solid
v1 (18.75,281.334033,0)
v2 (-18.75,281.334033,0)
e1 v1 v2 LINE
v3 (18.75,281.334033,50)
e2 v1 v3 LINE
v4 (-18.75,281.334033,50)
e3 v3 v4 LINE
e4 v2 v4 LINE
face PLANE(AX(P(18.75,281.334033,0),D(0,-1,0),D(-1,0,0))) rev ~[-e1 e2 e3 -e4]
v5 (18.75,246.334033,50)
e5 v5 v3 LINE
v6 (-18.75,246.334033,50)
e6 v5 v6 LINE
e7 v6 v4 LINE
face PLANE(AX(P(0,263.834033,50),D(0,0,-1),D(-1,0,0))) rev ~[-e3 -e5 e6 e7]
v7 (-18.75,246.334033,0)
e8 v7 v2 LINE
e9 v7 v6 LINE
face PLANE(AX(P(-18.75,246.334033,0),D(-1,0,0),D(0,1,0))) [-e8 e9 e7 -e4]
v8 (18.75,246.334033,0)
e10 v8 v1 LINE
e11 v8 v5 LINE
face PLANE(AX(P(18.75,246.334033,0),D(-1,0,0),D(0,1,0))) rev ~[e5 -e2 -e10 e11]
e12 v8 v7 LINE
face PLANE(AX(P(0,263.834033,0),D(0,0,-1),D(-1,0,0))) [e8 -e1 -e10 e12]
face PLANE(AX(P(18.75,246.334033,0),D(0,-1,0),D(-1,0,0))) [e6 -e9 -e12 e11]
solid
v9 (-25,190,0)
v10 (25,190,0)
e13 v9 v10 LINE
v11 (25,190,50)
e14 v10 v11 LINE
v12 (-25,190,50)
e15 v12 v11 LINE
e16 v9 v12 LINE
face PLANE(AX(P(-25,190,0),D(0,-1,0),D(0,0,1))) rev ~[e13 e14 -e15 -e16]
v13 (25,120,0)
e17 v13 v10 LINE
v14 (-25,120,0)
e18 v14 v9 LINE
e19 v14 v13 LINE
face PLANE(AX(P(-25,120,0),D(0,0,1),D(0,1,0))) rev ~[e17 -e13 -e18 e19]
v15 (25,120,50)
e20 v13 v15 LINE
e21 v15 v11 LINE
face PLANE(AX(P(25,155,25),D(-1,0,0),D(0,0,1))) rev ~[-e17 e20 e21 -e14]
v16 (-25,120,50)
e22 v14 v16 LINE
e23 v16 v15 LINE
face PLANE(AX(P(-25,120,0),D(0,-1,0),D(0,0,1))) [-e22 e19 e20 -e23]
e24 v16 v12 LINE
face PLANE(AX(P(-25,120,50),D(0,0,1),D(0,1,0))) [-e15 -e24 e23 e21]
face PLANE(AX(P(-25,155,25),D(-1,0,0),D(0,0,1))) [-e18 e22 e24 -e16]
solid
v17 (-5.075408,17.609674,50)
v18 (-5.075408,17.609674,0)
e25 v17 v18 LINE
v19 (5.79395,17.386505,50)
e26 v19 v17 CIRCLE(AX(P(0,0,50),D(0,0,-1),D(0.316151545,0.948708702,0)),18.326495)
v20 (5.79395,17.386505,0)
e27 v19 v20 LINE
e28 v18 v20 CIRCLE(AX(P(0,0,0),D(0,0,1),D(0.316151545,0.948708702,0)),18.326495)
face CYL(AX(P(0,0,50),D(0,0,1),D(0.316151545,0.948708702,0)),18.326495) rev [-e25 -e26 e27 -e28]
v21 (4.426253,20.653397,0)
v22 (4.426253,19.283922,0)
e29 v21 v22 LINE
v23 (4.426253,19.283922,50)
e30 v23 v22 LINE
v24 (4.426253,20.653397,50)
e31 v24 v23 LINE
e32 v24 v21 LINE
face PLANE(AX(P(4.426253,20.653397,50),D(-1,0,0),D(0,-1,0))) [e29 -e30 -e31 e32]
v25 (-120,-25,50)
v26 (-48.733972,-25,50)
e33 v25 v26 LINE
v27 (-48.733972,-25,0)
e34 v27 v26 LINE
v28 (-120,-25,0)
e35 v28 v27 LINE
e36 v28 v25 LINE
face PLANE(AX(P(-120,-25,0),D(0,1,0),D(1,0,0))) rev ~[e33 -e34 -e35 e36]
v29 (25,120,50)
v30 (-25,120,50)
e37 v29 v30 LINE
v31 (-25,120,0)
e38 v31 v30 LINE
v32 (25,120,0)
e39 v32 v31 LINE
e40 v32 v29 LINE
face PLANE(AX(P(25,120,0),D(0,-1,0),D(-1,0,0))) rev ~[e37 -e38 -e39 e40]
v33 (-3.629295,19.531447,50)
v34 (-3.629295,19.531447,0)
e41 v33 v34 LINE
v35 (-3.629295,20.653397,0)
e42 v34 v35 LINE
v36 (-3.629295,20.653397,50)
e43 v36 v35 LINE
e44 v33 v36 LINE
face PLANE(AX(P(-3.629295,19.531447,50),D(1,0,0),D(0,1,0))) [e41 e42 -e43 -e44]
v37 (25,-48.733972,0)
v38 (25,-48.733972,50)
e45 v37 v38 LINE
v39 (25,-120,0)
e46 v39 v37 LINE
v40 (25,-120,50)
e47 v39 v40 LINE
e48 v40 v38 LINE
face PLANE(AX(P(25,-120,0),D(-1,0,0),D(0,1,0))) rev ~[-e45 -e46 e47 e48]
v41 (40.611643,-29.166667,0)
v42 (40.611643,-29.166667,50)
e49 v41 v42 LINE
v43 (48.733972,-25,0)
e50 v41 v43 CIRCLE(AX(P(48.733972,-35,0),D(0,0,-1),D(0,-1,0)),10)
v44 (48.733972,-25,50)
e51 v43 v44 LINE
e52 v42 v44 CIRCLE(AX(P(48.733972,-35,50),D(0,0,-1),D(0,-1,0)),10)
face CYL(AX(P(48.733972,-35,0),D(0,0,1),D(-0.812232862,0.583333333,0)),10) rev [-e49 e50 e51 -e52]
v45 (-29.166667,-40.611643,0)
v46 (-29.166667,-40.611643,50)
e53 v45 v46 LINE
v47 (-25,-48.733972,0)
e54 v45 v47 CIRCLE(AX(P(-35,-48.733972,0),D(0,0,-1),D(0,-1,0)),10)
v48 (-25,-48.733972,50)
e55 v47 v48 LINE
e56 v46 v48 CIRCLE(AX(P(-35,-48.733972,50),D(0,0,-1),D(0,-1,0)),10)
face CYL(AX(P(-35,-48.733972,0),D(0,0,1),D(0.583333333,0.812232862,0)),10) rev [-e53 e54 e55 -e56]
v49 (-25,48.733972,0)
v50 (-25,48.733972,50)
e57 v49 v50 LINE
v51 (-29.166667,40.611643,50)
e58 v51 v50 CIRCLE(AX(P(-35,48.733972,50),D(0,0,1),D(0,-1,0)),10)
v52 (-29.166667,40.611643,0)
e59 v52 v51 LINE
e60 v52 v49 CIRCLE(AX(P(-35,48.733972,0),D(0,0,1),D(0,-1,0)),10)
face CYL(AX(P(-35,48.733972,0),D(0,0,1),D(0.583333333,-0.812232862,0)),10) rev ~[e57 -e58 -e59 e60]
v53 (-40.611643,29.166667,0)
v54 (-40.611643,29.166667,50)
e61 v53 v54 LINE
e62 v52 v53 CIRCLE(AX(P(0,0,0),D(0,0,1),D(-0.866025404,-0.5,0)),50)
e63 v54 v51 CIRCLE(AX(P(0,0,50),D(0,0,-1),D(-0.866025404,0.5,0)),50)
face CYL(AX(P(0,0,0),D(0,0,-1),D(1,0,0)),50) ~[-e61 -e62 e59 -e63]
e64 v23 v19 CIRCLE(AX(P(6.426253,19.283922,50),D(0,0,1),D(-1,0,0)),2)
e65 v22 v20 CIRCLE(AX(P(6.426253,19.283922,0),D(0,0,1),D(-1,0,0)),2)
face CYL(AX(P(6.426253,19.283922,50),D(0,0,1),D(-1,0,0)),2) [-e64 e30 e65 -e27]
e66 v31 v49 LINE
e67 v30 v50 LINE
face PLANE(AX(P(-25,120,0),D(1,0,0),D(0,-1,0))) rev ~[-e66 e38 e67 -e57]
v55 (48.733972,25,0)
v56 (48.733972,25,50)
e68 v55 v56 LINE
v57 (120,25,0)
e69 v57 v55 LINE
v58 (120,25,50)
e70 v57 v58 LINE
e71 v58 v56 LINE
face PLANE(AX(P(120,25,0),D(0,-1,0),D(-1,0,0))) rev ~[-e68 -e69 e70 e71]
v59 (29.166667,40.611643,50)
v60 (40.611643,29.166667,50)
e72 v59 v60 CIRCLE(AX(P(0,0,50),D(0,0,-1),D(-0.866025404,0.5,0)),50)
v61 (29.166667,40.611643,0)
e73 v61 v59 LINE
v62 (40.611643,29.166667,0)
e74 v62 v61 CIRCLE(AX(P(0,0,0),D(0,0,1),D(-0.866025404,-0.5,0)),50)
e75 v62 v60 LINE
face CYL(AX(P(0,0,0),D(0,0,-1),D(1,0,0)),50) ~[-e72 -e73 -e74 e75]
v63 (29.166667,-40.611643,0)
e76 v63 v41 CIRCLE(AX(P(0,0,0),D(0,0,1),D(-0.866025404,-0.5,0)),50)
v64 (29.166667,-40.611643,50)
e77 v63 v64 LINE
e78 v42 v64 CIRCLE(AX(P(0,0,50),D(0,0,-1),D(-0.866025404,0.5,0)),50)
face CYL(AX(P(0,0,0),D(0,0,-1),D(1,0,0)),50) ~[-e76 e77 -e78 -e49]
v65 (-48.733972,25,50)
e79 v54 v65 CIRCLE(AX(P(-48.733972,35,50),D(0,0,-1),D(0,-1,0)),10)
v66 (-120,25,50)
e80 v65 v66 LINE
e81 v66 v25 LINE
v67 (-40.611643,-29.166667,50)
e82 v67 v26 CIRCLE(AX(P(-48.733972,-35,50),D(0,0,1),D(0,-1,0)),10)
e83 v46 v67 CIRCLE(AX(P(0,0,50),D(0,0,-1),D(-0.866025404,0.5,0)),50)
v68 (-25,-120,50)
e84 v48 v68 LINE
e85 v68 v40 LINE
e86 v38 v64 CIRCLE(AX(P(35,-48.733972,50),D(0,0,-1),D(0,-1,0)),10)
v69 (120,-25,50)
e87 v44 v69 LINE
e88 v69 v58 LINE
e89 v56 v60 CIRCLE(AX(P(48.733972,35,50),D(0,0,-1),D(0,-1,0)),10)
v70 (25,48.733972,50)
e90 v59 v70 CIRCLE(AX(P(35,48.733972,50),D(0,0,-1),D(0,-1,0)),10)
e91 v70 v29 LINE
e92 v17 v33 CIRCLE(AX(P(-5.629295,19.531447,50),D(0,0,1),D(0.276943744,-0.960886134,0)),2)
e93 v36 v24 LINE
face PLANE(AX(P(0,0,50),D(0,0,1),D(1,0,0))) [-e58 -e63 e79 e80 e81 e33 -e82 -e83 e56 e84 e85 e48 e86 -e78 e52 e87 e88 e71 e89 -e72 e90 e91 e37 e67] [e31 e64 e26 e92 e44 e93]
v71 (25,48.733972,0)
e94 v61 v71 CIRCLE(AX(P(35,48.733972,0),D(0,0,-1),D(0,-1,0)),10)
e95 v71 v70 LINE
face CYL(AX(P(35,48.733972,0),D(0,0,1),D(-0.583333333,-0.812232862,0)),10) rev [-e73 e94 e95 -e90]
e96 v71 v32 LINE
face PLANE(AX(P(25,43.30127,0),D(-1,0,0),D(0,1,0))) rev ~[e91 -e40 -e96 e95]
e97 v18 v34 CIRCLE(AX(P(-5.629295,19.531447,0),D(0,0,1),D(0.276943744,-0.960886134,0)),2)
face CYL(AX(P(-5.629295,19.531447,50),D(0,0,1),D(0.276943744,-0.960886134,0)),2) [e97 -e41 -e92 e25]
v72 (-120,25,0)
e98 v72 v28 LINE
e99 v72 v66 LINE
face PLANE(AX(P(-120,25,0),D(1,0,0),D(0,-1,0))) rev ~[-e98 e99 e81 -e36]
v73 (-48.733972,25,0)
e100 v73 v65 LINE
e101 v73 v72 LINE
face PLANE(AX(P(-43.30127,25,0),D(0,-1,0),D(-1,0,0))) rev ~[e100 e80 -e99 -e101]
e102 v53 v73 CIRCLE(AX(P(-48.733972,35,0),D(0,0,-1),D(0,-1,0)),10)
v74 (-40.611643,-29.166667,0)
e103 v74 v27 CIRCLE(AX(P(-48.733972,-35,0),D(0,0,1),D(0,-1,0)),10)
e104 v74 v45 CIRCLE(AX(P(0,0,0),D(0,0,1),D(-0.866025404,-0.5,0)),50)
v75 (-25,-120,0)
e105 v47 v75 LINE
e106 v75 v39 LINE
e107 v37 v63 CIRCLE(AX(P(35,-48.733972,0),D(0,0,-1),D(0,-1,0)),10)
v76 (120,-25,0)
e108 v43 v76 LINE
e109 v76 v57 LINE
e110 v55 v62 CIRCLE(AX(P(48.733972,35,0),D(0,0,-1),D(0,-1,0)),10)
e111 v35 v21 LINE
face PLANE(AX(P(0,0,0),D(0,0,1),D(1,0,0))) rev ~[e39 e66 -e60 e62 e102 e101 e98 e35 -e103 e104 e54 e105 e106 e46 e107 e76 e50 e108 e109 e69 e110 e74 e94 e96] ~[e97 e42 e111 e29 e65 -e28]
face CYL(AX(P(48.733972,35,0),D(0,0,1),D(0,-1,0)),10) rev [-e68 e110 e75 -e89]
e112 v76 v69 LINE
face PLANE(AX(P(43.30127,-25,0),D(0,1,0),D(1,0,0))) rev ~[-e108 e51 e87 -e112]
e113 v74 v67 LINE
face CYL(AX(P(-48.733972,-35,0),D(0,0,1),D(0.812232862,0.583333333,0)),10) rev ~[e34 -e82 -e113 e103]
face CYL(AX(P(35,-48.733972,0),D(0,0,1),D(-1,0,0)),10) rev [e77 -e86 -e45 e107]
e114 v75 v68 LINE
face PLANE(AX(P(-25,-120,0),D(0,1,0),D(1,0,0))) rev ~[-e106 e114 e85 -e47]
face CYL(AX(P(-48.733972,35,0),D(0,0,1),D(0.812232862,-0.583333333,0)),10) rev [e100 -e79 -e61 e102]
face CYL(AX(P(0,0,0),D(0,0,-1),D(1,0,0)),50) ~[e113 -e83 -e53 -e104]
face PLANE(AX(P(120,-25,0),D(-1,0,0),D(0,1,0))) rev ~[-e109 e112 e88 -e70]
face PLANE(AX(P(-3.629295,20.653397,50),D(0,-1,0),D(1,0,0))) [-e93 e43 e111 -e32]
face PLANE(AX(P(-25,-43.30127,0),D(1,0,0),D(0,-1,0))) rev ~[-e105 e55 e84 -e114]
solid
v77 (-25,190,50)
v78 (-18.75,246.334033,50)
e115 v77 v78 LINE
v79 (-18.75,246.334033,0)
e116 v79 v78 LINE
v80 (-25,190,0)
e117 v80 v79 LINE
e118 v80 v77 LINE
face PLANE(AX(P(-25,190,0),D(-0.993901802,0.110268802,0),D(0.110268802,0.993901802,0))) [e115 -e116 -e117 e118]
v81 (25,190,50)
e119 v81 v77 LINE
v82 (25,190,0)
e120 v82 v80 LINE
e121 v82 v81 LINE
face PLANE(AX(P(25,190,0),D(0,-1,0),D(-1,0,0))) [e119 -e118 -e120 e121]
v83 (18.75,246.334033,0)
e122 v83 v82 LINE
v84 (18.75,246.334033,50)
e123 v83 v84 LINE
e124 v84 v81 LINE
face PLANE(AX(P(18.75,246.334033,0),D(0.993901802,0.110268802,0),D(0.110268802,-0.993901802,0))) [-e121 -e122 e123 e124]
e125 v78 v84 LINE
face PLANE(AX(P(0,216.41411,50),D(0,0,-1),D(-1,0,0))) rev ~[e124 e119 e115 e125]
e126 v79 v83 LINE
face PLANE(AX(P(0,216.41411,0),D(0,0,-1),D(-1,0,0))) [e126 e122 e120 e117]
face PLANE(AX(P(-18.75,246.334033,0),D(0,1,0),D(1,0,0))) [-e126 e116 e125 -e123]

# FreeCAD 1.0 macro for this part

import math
import FreeCAD as App
import Part
import Sketcher

V = App.Vector
Q = App.Units.Quantity


def edges_at(feature, points):
    """Names of the edges that pass closest to the given points."""
    edges = feature.Shape.Edges
    near = lambda p: min(range(len(edges)), key=lambda i: edges[i].distToShape(Part.Vertex(*p))[0])
    return sorted({f"Edge{near(p) + 1}" for p in points})

doc = App.newDocument("Part")
params = doc.addObject("Spreadsheet::Sheet", "Params")
for row, (alias, value) in enumerate([
    ("sketch1_diameter", "100 mm"),
    ("pad1_length", "50 mm"),
    ("sketch2_radius", "50 mm"),
    ("sketch2_height", "50 mm"),
    ("pad2_length", "50 mm"),
    ("fillet_radius", "10 mm"),
    ("fillet2_radius", "10 mm"),
    ("sketch3_radius", "2 mm"),
    ("sketch4_width", "70 mm"),
    ("sketch4_height", "50 mm"),
    ("pad3_length", "50 mm"),
    ("sketch5_width", "50 mm"),
    ("sketch5_width2", "37.5 mm"),
    ("pad4_length", "50 mm"),
    ("sketch6_height", "35 mm"),
    ("sketch6_width", "37.5 mm"),
    ("pad5_length", "50 mm"),
], start=1):
    params.set(f"A{row}", alias)
    params.set(f"B{row}", "=" + value)
    params.setAlias(f"B{row}", alias)

body = doc.addObject("PartDesign::Body", "Body")

sketch1 = doc.addObject("Sketcher::SketchObject", "Sketch")
body.addObject(sketch1)
sketch1.AttachmentSupport = (doc.XY_Plane, [""])
sketch1.MapMode = "FlatFace"
sketch1.addGeometry(Part.Circle(V(0, 0, 0), V(0, 0, 1), 50), False)
sketch1.addConstraint(Sketcher.Constraint("Coincident", 0, 3, -1, 1))
sketch1.addConstraint(Sketcher.Constraint("Diameter", 0, Q("100 mm")))
sketch1.setExpression("Constraints[1]", "Params.sketch1_diameter")
pad1 = doc.addObject("PartDesign::Pad", "Pad")
body.addObject(pad1)
pad1.Profile = sketch1
pad1.setExpression("Length", "Params.pad1_length")

sketch2 = doc.addObject("Sketcher::SketchObject", "Sketch001")
body.addObject(sketch2)
sketch2.AttachmentSupport = (doc.XY_Plane, [""])
sketch2.MapMode = "FlatFace"
sketch2.addGeometry(Part.ArcOfCircle(Part.Circle(V(0, 0, 0), V(0, 0, 1), 50), math.radians(-180), math.radians(-150)), False)
sketch2.addGeometry(Part.ArcOfCircle(Part.Circle(V(0, 0, 0), V(0, 0, 1), 50), math.radians(150), math.radians(180)), False)
sketch2.addGeometry(Part.LineSegment(V(-43, 25, 0), V(-120, 25, 0)), False)
sketch2.addGeometry(Part.LineSegment(V(-120, 25, 0), V(-120, -25, 0)), False)
sketch2.addGeometry(Part.LineSegment(V(-120, -25, 0), V(-43, -25, 0)), False)
sketch2.addConstraint(Sketcher.Constraint("Tangent", 0, 1, 1, 2))
sketch2.addConstraint(Sketcher.Constraint("Coincident", 1, 1, 2, 1))
sketch2.addConstraint(Sketcher.Constraint("Coincident", 2, 2, 3, 1))
sketch2.addConstraint(Sketcher.Constraint("Coincident", 3, 2, 4, 1))
sketch2.addConstraint(Sketcher.Constraint("Coincident", 4, 2, 0, 2))
sketch2.addConstraint(Sketcher.Constraint("Horizontal", 2))
sketch2.addConstraint(Sketcher.Constraint("Vertical", 3))
sketch2.addConstraint(Sketcher.Constraint("Horizontal", 4))
sketch2.addConstraint(Sketcher.Constraint("Coincident", 0, 3, -1, 1))
sketch2.addConstraint(Sketcher.Constraint("Equal", 0, 1))
sketch2.addConstraint(Sketcher.Constraint("PointOnObject", 0, 1, -1))
sketch2.addConstraint(Sketcher.Constraint("Vertical", 1, 1, 4, 2))
sketch2.addConstraint(Sketcher.Constraint("Radius", 0, Q("50 mm")))
sketch2.addConstraint(Sketcher.Constraint("DistanceY", 3, 2, 3, 1, Q("50 mm")))
sketch2.addConstraint(Sketcher.Constraint("DistanceX", 2, 2, -1, 1, Q("120 mm")))
sketch2.setExpression("Constraints[12]", "Params.sketch2_radius")
sketch2.setExpression("Constraints[13]", "Params.sketch2_height")
pad2 = doc.addObject("PartDesign::Pad", "Pad001")
body.addObject(pad2)
pad2.Profile = sketch2
pad2.setExpression("Length", "Params.pad2_length")
doc.recompute()

fillet = doc.addObject("PartDesign::Fillet", "Fillet")
body.addObject(fillet)
fillet.Base = (pad2, edges_at(pad2, [(-43.301, 25, 25), (-43.301, -25, 25)]))
fillet.setExpression("Radius", "Params.fillet_radius")
doc.recompute()

polarpattern = doc.addObject("PartDesign::PolarPattern", "PolarPattern")
body.addObject(polarpattern)
polarpattern.Originals = [pad2]
polarpattern.Axis = (doc.Z_Axis, [""])
polarpattern.Angle = 360
polarpattern.Occurrences = 4
body.Tip = polarpattern
doc.recompute()

fillet2 = doc.addObject("PartDesign::Fillet", "Fillet001")
body.addObject(fillet2)
fillet2.Base = (polarpattern, edges_at(polarpattern, [
    (-25, -43.301, 25),
    (25, -43.301, 25),
    (43.301, -25, 25),
    (43.301, 25, 25),
    (25, 43.301, 25),
    (-25, 43.301, 25),
]))
fillet2.setExpression("Radius", "Params.fillet2_radius")

sketch3 = doc.addObject("Sketcher::SketchObject", "Sketch002")
body.addObject(sketch3)
sketch3.AttachmentSupport = (doc.XY_Plane, [""])
sketch3.MapMode = "FlatFace"
sketch3.AttachmentOffset = App.Placement(V(0, 0, 50), App.Rotation())
sketch3.addGeometry(Part.LineSegment(V(-3.6, 20.7, 0), V(-3.6, 19.5, 0)), False)
sketch3.addGeometry(Part.ArcOfCircle(Part.Circle(V(-5.6, 19.5, 0), V(0, 0, 1), 2), math.radians(-74), math.radians(0)), False)
sketch3.addGeometry(Part.ArcOfCircle(Part.Circle(V(0, 0, 0), V(0, 0, 1), 18.3), math.radians(106), math.radians(432)), False)
sketch3.addGeometry(Part.ArcOfCircle(Part.Circle(V(6.4, 19.3, 0), V(0, 0, 1), 2), math.radians(180), math.radians(252)), False)
sketch3.addGeometry(Part.LineSegment(V(4.4, 19.3, 0), V(4.4, 20.7, 0)), False)
sketch3.addGeometry(Part.LineSegment(V(4.4, 20.7, 0), V(-3.6, 20.7, 0)), False)
sketch3.addConstraint(Sketcher.Constraint("Tangent", 0, 2, 1, 2))
sketch3.addConstraint(Sketcher.Constraint("Tangent", 1, 1, 2, 1))
sketch3.addConstraint(Sketcher.Constraint("Tangent", 2, 2, 3, 2))
sketch3.addConstraint(Sketcher.Constraint("Tangent", 3, 1, 4, 1))
sketch3.addConstraint(Sketcher.Constraint("Coincident", 4, 2, 5, 1))
sketch3.addConstraint(Sketcher.Constraint("Coincident", 5, 2, 0, 1))
sketch3.addConstraint(Sketcher.Constraint("Vertical", 0))
sketch3.addConstraint(Sketcher.Constraint("Vertical", 4))
sketch3.addConstraint(Sketcher.Constraint("Horizontal", 5))
sketch3.addConstraint(Sketcher.Constraint("Coincident", 2, 3, -1, 1))
sketch3.addConstraint(Sketcher.Constraint("Equal", 1, 3))
sketch3.addConstraint(Sketcher.Constraint("Radius", 1, Q("2 mm")))
sketch3.addConstraint(Sketcher.Constraint("Radius", 2, Q("18.326495 mm")))
sketch3.addConstraint(Sketcher.Constraint("DistanceX", 5, 2, 5, 1, Q("8.055548 mm")))
sketch3.addConstraint(Sketcher.Constraint("DistanceY", 0, 2, 0, 1, Q("1.121951 mm")))
sketch3.addConstraint(Sketcher.Constraint("DistanceY", 4, 1, 4, 2, Q("1.369475 mm")))
sketch3.setExpression("Constraints[11]", "Params.sketch3_radius")
pocket1 = doc.addObject("PartDesign::Pocket", "Pocket")
body.addObject(pocket1)
pocket1.Profile = sketch3
pocket1.Type = "ThroughAll"
body2 = doc.addObject("PartDesign::Body", "Body001")

sketch4 = doc.addObject("Sketcher::SketchObject", "Sketch003")
body2.addObject(sketch4)
sketch4.AttachmentSupport = (doc.getObject("YZ_Plane001"), [""])
sketch4.MapMode = "FlatFace"
sketch4.AttachmentOffset = App.Placement(V(0, 0, -25), App.Rotation())
sketch4.addGeometry(Part.LineSegment(V(190, 0, 0), V(120, 0, 0)), False)
sketch4.addGeometry(Part.LineSegment(V(120, 0, 0), V(120, 50, 0)), False)
sketch4.addGeometry(Part.LineSegment(V(120, 50, 0), V(190, 50, 0)), False)
sketch4.addGeometry(Part.LineSegment(V(190, 50, 0), V(190, 0, 0)), False)
sketch4.addConstraint(Sketcher.Constraint("Coincident", 0, 2, 1, 1))
sketch4.addConstraint(Sketcher.Constraint("Coincident", 1, 2, 2, 1))
sketch4.addConstraint(Sketcher.Constraint("Coincident", 2, 2, 3, 1))
sketch4.addConstraint(Sketcher.Constraint("Coincident", 3, 2, 0, 1))
sketch4.addConstraint(Sketcher.Constraint("Horizontal", 0))
sketch4.addConstraint(Sketcher.Constraint("Vertical", 1))
sketch4.addConstraint(Sketcher.Constraint("Horizontal", 2))
sketch4.addConstraint(Sketcher.Constraint("Vertical", 3))
sketch4.addConstraint(Sketcher.Constraint("PointOnObject", 0, 2, -1))
sketch4.addConstraint(Sketcher.Constraint("DistanceX", 0, 2, 0, 1, Q("70 mm")))
sketch4.addConstraint(Sketcher.Constraint("DistanceY", 1, 1, 1, 2, Q("50 mm")))
sketch4.addConstraint(Sketcher.Constraint("DistanceX", -1, 1, 0, 2, Q("120 mm")))
sketch4.setExpression("Constraints[9]", "Params.sketch4_width")
sketch4.setExpression("Constraints[10]", "Params.sketch4_height")
pad3 = doc.addObject("PartDesign::Pad", "Pad002")
body2.addObject(pad3)
pad3.Profile = sketch4
pad3.setExpression("Length", "Params.pad3_length")
body3 = doc.addObject("PartDesign::Body", "Body002")

sketch5 = doc.addObject("Sketcher::SketchObject", "Sketch004")
body3.addObject(sketch5)
sketch5.AttachmentSupport = (doc.getObject("XY_Plane002"), [""])
sketch5.MapMode = "FlatFace"
sketch5.addGeometry(Part.LineSegment(V(25, 190, 0), V(-25, 190, 0)), False)
sketch5.addGeometry(Part.LineSegment(V(-25, 190, 0), V(-19, 246, 0)), False)
sketch5.addGeometry(Part.LineSegment(V(-19, 246, 0), V(19, 246, 0)), False)
sketch5.addGeometry(Part.LineSegment(V(19, 246, 0), V(25, 190, 0)), False)
sketch5.addConstraint(Sketcher.Constraint("Coincident", 0, 2, 1, 1))
sketch5.addConstraint(Sketcher.Constraint("Coincident", 1, 2, 2, 1))
sketch5.addConstraint(Sketcher.Constraint("Coincident", 2, 2, 3, 1))
sketch5.addConstraint(Sketcher.Constraint("Coincident", 3, 2, 0, 1))
sketch5.addConstraint(Sketcher.Constraint("Horizontal", 0))
sketch5.addConstraint(Sketcher.Constraint("Horizontal", 2))
sketch5.addConstraint(Sketcher.Constraint("Equal", 1, 3))
sketch5.addConstraint(Sketcher.Constraint("DistanceX", 0, 2, 0, 1, Q("50 mm")))
sketch5.addConstraint(Sketcher.Constraint("DistanceX", 2, 1, 2, 2, Q("37.5 mm")))
sketch5.addConstraint(Sketcher.Constraint("DistanceX", 0, 2, -1, 1, Q("25 mm")))
sketch5.addConstraint(Sketcher.Constraint("DistanceY", -1, 1, 0, 2, Q("190 mm")))
sketch5.addConstraint(Sketcher.Constraint("Distance", 1, Q("56.679676 mm")))
sketch5.setExpression("Constraints[7]", "Params.sketch5_width")
sketch5.setExpression("Constraints[8]", "Params.sketch5_width2")
pad4 = doc.addObject("PartDesign::Pad", "Pad003")
body3.addObject(pad4)
pad4.Profile = sketch5
pad4.setExpression("Length", "Params.pad4_length")
body4 = doc.addObject("PartDesign::Body", "Body003")

sketch6 = doc.addObject("Sketcher::SketchObject", "Sketch005")
body4.addObject(sketch6)
sketch6.AttachmentSupport = (doc.getObject("XY_Plane003"), [""])
sketch6.MapMode = "FlatFace"
sketch6.addGeometry(Part.LineSegment(V(19, 281, 0), V(19, 246, 0)), False)
sketch6.addGeometry(Part.LineSegment(V(19, 246, 0), V(-19, 246, 0)), False)
sketch6.addGeometry(Part.LineSegment(V(-19, 246, 0), V(-19, 281, 0)), False)
sketch6.addGeometry(Part.LineSegment(V(-19, 281, 0), V(19, 281, 0)), False)
sketch6.addConstraint(Sketcher.Constraint("Coincident", 0, 2, 1, 1))
sketch6.addConstraint(Sketcher.Constraint("Coincident", 1, 2, 2, 1))
sketch6.addConstraint(Sketcher.Constraint("Coincident", 2, 2, 3, 1))
sketch6.addConstraint(Sketcher.Constraint("Coincident", 3, 2, 0, 1))
sketch6.addConstraint(Sketcher.Constraint("Vertical", 0))
sketch6.addConstraint(Sketcher.Constraint("Horizontal", 1))
sketch6.addConstraint(Sketcher.Constraint("Vertical", 2))
sketch6.addConstraint(Sketcher.Constraint("Horizontal", 3))
sketch6.addConstraint(Sketcher.Constraint("DistanceY", 0, 2, 0, 1, Q("35 mm")))
sketch6.addConstraint(Sketcher.Constraint("DistanceX", 1, 2, 1, 1, Q("37.5 mm")))
sketch6.addConstraint(Sketcher.Constraint("DistanceX", -1, 1, 0, 2, Q("18.75 mm")))
sketch6.addConstraint(Sketcher.Constraint("DistanceY", -1, 1, 0, 2, Q("246.334033 mm")))
sketch6.setExpression("Constraints[8]", "Params.sketch6_height")
sketch6.setExpression("Constraints[9]", "Params.sketch6_width")
pad5 = doc.addObject("PartDesign::Pad", "Pad004")
body4.addObject(pad5)
pad5.Profile = sketch6
pad5.setExpression("Length", "Params.pad5_length")

doc.recompute()
